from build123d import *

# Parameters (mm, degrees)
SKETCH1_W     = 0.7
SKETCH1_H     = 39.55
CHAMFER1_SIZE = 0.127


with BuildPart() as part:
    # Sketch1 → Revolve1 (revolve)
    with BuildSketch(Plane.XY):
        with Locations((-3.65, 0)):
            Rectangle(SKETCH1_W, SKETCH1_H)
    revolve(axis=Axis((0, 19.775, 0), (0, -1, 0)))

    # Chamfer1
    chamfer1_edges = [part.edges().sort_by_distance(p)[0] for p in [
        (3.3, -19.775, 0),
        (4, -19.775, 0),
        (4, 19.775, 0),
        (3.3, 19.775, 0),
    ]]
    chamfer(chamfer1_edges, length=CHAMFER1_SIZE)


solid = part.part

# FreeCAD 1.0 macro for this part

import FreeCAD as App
import Part
import Sketcher

V = App.Vector
Q = App.Units.Quantity


def edges_at(feature, points):
    """Names of the edges that pass closest to the given points."""
    edges = feature.Shape.Edges
    near = lambda p: min(range(len(edges)), key=lambda i: edges[i].distToShape(Part.Vertex(*p))[0])
    return sorted({f"Edge{near(p) + 1}" for p in points})


def add_polygon(sketch, points):
    """Adds a closed chain of lines whose ends are joined by coincident constraints."""
    first, n = sketch.GeometryCount, len(points)
    for a, b in zip(points, points[1:] + points[:1]):
        sketch.addGeometry(Part.LineSegment(App.Vector(*a, 0), App.Vector(*b, 0)), False)
    for i in range(n):
        sketch.addConstraint(Sketcher.Constraint("Coincident", first + i, 2, first + (i + 1) % n, 1))

doc = App.newDocument("Part")
body = doc.addObject("PartDesign::Body", "Body")

sketch1 = body.newObject("Sketcher::SketchObject", "Sketch")
sketch1.AttachmentSupport = (doc.getObject("XY_Plane"), [""])
sketch1.MapMode = "FlatFace"
add_polygon(sketch1, [(-4, 19.8), (-4, -19.8), (-3.3, -19.8), (-3.3, 19.8)])
sketch1.addConstraint([
    Sketcher.Constraint("Vertical", 0),
    Sketcher.Constraint("Horizontal", 1),
    Sketcher.Constraint("Vertical", 2),
    Sketcher.Constraint("Horizontal", 3),
    Sketcher.Constraint("DistanceX", 1, 1, 1, 2, Q("0.7 mm")),
    Sketcher.Constraint("DistanceX", 0, 2, -1, 1, Q("4 mm")),
    Sketcher.Constraint("DistanceY", 0, 2, 0, 1, Q("39.55 mm")),
    Sketcher.Constraint("DistanceY", 0, 2, -1, 1, Q("19.775 mm")),
])
revolution = body.newObject("PartDesign::Revolution", "Revolution")
revolution.Profile = sketch1
revolution.ReferenceAxis = (sketch1, ["V_Axis"])
revolution.Angle = 360
doc.recompute()

chamfer = body.newObject("PartDesign::Chamfer", "Chamfer")
chamfer.Base = (revolution, edges_at(revolution, [
    (3.3, -19.775, 0),
    (4, -19.775, 0),
    (4, 19.775, 0),
    (3.3, 19.775, 0),
]))
chamfer.Size = 0.127

doc.recompute()
